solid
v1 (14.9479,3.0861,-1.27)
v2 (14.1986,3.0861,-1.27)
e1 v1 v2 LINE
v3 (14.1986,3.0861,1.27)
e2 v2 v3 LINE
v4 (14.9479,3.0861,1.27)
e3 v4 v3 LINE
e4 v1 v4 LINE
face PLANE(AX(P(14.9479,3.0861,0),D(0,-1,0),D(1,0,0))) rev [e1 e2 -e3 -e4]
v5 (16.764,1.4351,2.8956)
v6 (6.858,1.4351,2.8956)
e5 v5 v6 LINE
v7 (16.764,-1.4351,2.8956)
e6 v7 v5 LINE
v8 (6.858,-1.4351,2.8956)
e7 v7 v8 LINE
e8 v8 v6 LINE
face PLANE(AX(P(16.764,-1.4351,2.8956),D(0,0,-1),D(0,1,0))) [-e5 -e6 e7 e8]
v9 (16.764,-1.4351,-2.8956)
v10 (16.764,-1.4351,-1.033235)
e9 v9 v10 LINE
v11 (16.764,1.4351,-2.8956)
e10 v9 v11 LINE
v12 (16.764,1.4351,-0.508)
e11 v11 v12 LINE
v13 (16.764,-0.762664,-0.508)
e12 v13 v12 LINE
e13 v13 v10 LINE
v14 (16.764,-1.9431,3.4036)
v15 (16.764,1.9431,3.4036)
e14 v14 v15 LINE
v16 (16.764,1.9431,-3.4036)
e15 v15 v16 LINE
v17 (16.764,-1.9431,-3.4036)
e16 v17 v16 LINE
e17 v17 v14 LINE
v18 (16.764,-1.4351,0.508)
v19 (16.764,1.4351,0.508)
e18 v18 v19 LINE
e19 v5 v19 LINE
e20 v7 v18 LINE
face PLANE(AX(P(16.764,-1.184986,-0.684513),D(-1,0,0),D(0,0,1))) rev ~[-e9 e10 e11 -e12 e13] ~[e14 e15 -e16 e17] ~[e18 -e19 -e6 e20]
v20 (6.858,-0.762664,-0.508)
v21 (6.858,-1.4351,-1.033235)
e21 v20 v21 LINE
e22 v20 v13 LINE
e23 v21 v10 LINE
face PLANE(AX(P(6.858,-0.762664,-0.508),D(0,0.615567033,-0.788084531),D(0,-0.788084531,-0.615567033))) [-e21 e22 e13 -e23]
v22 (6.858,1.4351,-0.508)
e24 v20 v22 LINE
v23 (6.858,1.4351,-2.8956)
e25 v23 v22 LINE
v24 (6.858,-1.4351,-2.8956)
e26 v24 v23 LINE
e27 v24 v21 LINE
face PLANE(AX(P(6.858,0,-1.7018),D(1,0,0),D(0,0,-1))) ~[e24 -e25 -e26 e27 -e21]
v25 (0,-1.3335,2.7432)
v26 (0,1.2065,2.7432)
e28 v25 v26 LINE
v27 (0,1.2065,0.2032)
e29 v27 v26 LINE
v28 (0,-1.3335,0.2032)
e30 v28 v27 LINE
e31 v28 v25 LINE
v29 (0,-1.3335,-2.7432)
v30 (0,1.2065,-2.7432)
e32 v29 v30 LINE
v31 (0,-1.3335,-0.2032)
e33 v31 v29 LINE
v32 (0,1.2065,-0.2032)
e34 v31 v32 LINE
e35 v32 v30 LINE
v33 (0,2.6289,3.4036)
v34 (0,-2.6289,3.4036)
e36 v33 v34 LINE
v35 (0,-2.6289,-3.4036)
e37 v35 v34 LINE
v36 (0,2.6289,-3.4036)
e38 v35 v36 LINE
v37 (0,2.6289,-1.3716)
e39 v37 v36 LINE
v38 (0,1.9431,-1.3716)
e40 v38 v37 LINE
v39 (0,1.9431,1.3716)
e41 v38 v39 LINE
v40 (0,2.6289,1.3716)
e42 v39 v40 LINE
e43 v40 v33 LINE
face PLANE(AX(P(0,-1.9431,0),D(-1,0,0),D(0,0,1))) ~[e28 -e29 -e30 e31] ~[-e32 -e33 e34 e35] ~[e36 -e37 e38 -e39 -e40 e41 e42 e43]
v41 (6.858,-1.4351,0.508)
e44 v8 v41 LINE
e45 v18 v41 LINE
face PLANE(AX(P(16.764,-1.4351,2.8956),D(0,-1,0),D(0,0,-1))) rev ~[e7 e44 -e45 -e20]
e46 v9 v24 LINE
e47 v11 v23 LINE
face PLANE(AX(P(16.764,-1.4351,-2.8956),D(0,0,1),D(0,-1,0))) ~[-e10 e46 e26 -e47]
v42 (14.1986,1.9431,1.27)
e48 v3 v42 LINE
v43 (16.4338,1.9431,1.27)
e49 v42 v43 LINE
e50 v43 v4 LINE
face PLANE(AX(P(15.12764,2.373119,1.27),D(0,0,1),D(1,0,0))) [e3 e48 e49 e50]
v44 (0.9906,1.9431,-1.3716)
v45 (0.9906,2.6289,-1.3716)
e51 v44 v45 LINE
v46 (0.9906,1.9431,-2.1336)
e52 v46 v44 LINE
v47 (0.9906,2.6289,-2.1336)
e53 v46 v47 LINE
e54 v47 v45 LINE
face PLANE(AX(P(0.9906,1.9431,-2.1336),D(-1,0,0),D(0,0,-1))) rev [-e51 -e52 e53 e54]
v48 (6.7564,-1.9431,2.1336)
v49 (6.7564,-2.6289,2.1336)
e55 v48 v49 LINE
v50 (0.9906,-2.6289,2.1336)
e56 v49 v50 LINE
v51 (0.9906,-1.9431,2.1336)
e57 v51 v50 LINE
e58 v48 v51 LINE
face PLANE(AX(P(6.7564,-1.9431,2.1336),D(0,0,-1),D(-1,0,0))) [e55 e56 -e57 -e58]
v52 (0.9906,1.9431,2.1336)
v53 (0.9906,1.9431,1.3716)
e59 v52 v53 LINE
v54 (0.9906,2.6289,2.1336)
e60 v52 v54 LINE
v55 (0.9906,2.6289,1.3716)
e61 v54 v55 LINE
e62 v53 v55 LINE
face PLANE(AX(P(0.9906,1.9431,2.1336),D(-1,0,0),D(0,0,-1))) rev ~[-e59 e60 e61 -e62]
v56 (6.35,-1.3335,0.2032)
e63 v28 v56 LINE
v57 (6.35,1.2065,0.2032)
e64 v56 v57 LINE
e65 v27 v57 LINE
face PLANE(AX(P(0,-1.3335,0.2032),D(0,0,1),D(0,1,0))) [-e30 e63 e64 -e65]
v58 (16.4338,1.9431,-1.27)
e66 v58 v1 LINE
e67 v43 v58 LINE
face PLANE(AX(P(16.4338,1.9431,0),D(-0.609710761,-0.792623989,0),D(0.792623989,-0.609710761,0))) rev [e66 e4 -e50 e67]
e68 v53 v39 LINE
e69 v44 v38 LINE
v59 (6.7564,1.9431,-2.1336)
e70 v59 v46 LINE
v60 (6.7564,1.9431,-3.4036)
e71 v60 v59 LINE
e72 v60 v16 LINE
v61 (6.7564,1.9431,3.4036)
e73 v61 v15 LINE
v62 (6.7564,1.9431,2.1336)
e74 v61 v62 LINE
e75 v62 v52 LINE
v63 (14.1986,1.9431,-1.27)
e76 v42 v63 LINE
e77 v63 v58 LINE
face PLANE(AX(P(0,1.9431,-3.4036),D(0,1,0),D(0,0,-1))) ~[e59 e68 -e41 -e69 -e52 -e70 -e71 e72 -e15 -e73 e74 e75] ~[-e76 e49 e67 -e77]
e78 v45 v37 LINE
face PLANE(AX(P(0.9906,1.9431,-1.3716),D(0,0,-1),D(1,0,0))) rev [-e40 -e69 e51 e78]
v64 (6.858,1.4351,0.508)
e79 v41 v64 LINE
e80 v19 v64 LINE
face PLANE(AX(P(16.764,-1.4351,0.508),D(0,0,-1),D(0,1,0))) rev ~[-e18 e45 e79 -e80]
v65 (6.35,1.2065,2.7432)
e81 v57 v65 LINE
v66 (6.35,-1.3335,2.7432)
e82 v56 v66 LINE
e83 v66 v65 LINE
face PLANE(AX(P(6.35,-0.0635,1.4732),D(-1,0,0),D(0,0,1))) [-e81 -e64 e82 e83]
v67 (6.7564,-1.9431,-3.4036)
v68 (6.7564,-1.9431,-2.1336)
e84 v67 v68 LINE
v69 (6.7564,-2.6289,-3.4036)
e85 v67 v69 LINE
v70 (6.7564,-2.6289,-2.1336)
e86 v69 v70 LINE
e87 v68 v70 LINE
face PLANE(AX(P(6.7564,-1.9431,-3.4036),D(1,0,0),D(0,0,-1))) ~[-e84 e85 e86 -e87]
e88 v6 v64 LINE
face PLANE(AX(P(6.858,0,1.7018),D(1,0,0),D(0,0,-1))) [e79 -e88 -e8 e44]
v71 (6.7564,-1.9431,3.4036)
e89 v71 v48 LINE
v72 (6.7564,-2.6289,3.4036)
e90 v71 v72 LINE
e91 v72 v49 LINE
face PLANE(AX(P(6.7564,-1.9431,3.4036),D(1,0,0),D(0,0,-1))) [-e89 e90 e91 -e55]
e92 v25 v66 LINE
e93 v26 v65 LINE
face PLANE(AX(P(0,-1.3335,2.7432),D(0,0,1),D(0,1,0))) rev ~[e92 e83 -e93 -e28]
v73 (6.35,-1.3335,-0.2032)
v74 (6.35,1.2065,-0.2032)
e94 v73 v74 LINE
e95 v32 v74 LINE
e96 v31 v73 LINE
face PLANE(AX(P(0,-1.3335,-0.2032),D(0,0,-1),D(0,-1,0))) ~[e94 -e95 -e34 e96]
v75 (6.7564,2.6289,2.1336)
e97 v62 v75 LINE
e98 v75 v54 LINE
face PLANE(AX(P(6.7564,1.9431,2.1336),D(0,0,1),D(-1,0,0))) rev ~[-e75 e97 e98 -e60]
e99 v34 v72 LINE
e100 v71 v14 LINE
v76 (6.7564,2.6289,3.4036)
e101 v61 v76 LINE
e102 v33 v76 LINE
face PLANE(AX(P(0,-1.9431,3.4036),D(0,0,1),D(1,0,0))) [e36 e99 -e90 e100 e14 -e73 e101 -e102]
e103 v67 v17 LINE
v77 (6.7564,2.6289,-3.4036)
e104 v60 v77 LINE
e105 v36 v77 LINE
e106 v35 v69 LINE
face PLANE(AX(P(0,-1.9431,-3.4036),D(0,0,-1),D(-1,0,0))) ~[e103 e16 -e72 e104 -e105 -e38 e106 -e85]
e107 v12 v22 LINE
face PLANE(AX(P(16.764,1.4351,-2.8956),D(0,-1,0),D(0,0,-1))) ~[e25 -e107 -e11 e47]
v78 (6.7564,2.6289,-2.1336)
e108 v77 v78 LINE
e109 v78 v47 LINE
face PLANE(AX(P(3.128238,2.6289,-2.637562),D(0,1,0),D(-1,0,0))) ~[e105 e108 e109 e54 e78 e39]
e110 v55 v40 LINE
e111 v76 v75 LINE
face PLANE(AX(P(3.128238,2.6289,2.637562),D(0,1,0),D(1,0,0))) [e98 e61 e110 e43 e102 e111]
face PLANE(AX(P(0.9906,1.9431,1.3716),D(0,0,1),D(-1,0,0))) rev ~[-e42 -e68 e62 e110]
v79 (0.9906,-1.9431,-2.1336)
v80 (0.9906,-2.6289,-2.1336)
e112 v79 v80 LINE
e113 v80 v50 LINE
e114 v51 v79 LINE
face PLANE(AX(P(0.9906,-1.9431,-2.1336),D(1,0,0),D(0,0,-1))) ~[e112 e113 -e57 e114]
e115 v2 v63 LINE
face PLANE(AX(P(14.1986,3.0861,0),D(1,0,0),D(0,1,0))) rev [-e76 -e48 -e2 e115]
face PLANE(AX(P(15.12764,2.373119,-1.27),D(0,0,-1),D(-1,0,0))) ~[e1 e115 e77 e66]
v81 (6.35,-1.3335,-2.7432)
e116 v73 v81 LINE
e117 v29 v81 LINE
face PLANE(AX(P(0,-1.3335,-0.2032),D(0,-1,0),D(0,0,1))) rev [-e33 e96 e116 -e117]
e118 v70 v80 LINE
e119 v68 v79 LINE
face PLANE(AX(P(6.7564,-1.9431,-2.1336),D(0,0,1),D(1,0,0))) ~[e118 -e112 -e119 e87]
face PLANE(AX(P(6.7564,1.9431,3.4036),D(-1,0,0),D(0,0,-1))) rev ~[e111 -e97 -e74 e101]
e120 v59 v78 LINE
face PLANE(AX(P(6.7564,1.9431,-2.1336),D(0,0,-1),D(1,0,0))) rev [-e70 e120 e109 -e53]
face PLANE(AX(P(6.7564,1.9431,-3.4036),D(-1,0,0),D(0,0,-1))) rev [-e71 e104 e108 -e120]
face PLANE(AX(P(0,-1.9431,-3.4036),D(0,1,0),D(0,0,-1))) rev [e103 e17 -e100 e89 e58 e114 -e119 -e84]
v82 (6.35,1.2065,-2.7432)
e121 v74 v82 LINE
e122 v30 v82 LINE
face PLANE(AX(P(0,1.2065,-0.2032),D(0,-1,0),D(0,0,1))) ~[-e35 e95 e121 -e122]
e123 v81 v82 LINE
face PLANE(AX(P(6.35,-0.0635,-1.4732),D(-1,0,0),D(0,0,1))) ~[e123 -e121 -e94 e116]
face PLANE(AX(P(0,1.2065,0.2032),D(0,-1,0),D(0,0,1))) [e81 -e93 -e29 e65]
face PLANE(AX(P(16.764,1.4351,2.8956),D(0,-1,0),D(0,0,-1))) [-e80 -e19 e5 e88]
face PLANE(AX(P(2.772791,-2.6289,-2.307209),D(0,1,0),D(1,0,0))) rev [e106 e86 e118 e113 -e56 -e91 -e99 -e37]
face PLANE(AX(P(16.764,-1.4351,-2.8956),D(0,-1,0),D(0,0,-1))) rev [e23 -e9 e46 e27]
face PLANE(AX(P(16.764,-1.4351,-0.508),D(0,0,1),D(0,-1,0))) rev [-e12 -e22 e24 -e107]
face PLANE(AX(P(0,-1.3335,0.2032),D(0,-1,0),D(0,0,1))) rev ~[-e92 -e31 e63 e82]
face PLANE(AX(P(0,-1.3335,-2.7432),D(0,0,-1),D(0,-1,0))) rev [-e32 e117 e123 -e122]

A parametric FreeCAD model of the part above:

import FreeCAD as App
import Part
import Sketcher
from FreeCAD import Vector
Q = App.Units.Quantity


def add_polygon(sketch, points):
    """Adds a closed chain of lines whose ends are joined by coincident constraints."""
    first, n = sketch.GeometryCount, len(points)
    for a, b in zip(points, points[1:] + points[:1]):
        sketch.addGeometry(Part.LineSegment(App.Vector(*a, 0), App.Vector(*b, 0)), False)
    for i in range(n):
        sketch.addConstraint(Sketcher.Constraint("Coincident", first + i, 2, first + (i + 1) % n, 1))

doc = App.newDocument("Part")
body = doc.addObject("PartDesign::Body", "Body")

# Sketch on YZ plane
sketch1 = body.newObject("Sketcher::SketchObject", "Sketch")
sketch1.AttachmentSupport = (doc.getObject("YZ_Plane"), [""])
sketch1.MapMode = "FlatFace"
add_polygon(sketch1, [(1.9, 3.4), (-1.9, 3.4), (-1.9, 0), (1.9, 0)])  # lines 0-3
sketch1.addConstraint([
    Sketcher.Constraint("Horizontal", 0),
    Sketcher.Constraint("Vertical", 1),
    Sketcher.Constraint("Horizontal", 2),
    Sketcher.Constraint("Vertical", 3),
    Sketcher.Constraint("Symmetric", 1, 2, 2, 2, -1, 1),
    Sketcher.Constraint("DistanceX", 0, 2, 0, 1, Q("0.153 in")),
    Sketcher.Constraint("DistanceY", 1, 2, 1, 1, Q("0.134 in")),
])
pad1 = body.newObject("PartDesign::Pad", "Pad")
pad1.Profile = sketch1
pad1.Length = Q("0.66 in")

# Sketch on XZ plane
sketch2 = body.newObject("Sketcher::SketchObject", "Sketch001")
sketch2.AttachmentSupport = (doc.getObject("XZ_Plane"), [""])
sketch2.MapMode = "FlatFace"
sketch2.AttachmentOffset = App.Placement(Vector(0, 0, -0.0765 * 25.4), App.Rotation())
add_polygon(sketch2, [(0, 3.4), (6.8, 3.4), (6.8, 2.1), (1, 2.1), (1, 1.4), (0, 1.4)])  # lines 0-5
sketch2.addConstraint([
    Sketcher.Constraint("Horizontal", 0),
    Sketcher.Constraint("Vertical", 1),
    Sketcher.Constraint("Horizontal", 2),
    Sketcher.Constraint("Vertical", 3),
    Sketcher.Constraint("Horizontal", 4),
    Sketcher.Constraint("Vertical", 5),
    Sketcher.Constraint("PointOnObject", 4, 2, -2),
    Sketcher.Constraint("DistanceY", 1, 2, 1, 1, Q("0.05 in")),
    Sketcher.Constraint("DistanceY", 3, 2, 3, 1, Q("0.03 in")),
    Sketcher.Constraint("DistanceX", 0, 1, 0, 2, Q("0.266 in")),
    Sketcher.Constraint("DistanceX", 2, 2, 2, 1, Q("0.227 in")),
    Sketcher.Constraint("DistanceY", -1, 1, 0, 2, Q("0.134 in")),
])
pad2 = body.newObject("PartDesign::Pad", "Pad001")
pad2.Profile = sketch2
pad2.Length = Q("0.027 in")
pad2.Reversed = True

# Sketch on XZ plane
sketch3 = body.newObject("Sketcher::SketchObject", "Sketch002")
sketch3.AttachmentSupport = (doc.getObject("XZ_Plane"), [""])
sketch3.MapMode = "FlatFace"
sketch3.AttachmentOffset = App.Placement(Vector(0, 0, 0.0765 * 25.4), App.Rotation())
add_polygon(sketch3, [(6.8, 3.4), (0, 3.4), (0, 0), (1, 0), (1, 2.1), (6.8, 2.1)])  # lines 0-5
sketch3.addConstraint([
    Sketcher.Constraint("Horizontal", 0),
    Sketcher.Constraint("Vertical", 1),
    Sketcher.Constraint("Horizontal", 2),
    Sketcher.Constraint("Vertical", 3),
    Sketcher.Constraint("Horizontal", 4),
    Sketcher.Constraint("Vertical", 5),
    Sketcher.Constraint("Coincident", 1, 2, -1, 1),
    Sketcher.Constraint("DistanceY", 5, 1, 5, 2, Q("0.05 in")),
    Sketcher.Constraint("DistanceX", 0, 2, 0, 1, Q("0.266 in")),
    Sketcher.Constraint("DistanceX", 2, 1, 2, 2, Q("0.039 in")),
    Sketcher.Constraint("DistanceY", 1, 2, 1, 1, Q("0.134 in")),
])
pad3 = body.newObject("PartDesign::Pad", "Pad002")
pad3.Profile = sketch3
pad3.Length = Q("0.027 in")

# Sketch on XY plane
sketch4 = body.newObject("Sketcher::SketchObject", "Sketch003")
sketch4.AttachmentSupport = (doc.getObject("XY_Plane"), [""])
sketch4.MapMode = "FlatFace"
add_polygon(sketch4, [(16.4, 1.9), (14.9, 3.1), (14.2, 3.1), (14.2, 1.9)])  # lines 0-3
sketch4.addConstraint([
    Sketcher.Constraint("Horizontal", 1),
    Sketcher.Constraint("Vertical", 2),
    Sketcher.Constraint("Horizontal", 3),
    Sketcher.Constraint("DistanceX", 3, 1, 3, 2, Q("0.088 in")),
    Sketcher.Constraint("DistanceY", 2, 2, 2, 1, Q("0.045 in")),
    Sketcher.Constraint("DistanceX", 1, 2, 1, 1, Q("0.0295 in")),
    Sketcher.Constraint("DistanceX", -1, 1, 1, 2, Q("0.559 in")),
    Sketcher.Constraint("DistanceY", -1, 1, 0, 2, Q("0.1215 in")),
])
pad4 = body.newObject("PartDesign::Pad", "Pad003")
pad4.Profile = sketch4
pad4.Length = Q("0.05 in")

# Sketch on YZ plane
sketch5 = body.newObject("Sketcher::SketchObject", "Sketch004")
sketch5.AttachmentSupport = (doc.getObject("YZ_Plane"), [""])
sketch5.MapMode = "FlatFace"
sketch5.AttachmentOffset = App.Placement(Vector(0, 0, 0.66 * 25.4), App.Rotation())
add_polygon(sketch5, [(1.4, 2.9), (-1.4, 2.9), (-1.4, 0.5), (1.4, 0.5)])  # lines 0-3
sketch5.addConstraint([
    Sketcher.Constraint("Horizontal", 0),
    Sketcher.Constraint("Vertical", 1),
    Sketcher.Constraint("Horizontal", 2),
    Sketcher.Constraint("Vertical", 3),
    Sketcher.Constraint("DistanceX", 0, 2, 0, 1, Q("0.113 in")),
    Sketcher.Constraint("DistanceY", 1, 2, 1, 1, Q("0.094 in")),
    Sketcher.Constraint("DistanceY", -1, 1, 1, 2, Q("0.02 in")),
    Sketcher.Constraint("DistanceX", 0, 2, -1, 1, Q("0.0565 in")),
])
pocket1 = body.newObject("PartDesign::Pocket", "Pocket")
pocket1.Profile = sketch5
pocket1.Length = Q("0.39 in")

# Sketch on YZ plane
sketch6 = body.newObject("Sketcher::SketchObject", "Sketch005")
sketch6.AttachmentSupport = (doc.getObject("YZ_Plane"), [""])
sketch6.MapMode = "FlatFace"
add_polygon(sketch6, [(1.2, 0.2), (-1.3, 0.2), (-1.3, 2.7), (1.2, 2.7)])  # lines 0-3
sketch6.addConstraint([
    Sketcher.Constraint("Horizontal", 0),
    Sketcher.Constraint("Vertical", 1),
    Sketcher.Constraint("Horizontal", 2),
    Sketcher.Constraint("Vertical", 3),
    Sketcher.Constraint("Equal", 2, 1),
    Sketcher.Constraint("DistanceX", 0, 2, 0, 1, Q("0.1 in")),
    Sketcher.Constraint("DistanceY", -1, 1, 0, 2, Q("0.008 in")),
    Sketcher.Constraint("DistanceX", 0, 2, -1, 1, Q("0.0525 in")),
])
pocket2 = body.newObject("PartDesign::Pocket", "Pocket001")
pocket2.Profile = sketch6
pocket2.Length = Q("0.25 in")
pocket2.Reversed = True
doc.recompute()

mirrored = body.newObject("PartDesign::Mirrored", "Mirrored")
mirrored.Originals = [pad1, pad2, pad3, pad4, pocket1, pocket2]
mirrored.MirrorPlane = (doc.getObject("XY_Plane"), [""])
body.Tip = mirrored

# Sketch on YZ plane
sketch7 = body.newObject("Sketcher::SketchObject", "Sketch006")
sketch7.AttachmentSupport = (doc.getObject("YZ_Plane"), [""])
sketch7.MapMode = "FlatFace"
sketch7.AttachmentOffset = App.Placement(Vector(0, 0, 0.27 * 25.4), App.Rotation())
add_polygon(sketch7, [(-1.4, -1), (-0.8, -0.5), (-1.4, -0.5)])  # lines 0-2
sketch7.addConstraint([
    Sketcher.Constraint("Horizontal", 1),
    Sketcher.Constraint("Vertical", 2),
    Sketcher.Constraint("DistanceY", 0, 2, -1, 1, Q("0.02 in")),
    Sketcher.Constraint("DistanceX", 1, 2, -1, 1, Q("0.0565 in")),
    Sketcher.Constraint("DistanceX", 1, 2, 1, 1, Q("0.672436 mm")),
    Sketcher.Constraint("DistanceY", 2, 2, 2, 1, Q("0.525235 mm")),
])
pad5 = body.newObject("PartDesign::Pad", "Pad004")
pad5.Profile = sketch7
pad5.Length = Q("0.39 in")

doc.recompute()
